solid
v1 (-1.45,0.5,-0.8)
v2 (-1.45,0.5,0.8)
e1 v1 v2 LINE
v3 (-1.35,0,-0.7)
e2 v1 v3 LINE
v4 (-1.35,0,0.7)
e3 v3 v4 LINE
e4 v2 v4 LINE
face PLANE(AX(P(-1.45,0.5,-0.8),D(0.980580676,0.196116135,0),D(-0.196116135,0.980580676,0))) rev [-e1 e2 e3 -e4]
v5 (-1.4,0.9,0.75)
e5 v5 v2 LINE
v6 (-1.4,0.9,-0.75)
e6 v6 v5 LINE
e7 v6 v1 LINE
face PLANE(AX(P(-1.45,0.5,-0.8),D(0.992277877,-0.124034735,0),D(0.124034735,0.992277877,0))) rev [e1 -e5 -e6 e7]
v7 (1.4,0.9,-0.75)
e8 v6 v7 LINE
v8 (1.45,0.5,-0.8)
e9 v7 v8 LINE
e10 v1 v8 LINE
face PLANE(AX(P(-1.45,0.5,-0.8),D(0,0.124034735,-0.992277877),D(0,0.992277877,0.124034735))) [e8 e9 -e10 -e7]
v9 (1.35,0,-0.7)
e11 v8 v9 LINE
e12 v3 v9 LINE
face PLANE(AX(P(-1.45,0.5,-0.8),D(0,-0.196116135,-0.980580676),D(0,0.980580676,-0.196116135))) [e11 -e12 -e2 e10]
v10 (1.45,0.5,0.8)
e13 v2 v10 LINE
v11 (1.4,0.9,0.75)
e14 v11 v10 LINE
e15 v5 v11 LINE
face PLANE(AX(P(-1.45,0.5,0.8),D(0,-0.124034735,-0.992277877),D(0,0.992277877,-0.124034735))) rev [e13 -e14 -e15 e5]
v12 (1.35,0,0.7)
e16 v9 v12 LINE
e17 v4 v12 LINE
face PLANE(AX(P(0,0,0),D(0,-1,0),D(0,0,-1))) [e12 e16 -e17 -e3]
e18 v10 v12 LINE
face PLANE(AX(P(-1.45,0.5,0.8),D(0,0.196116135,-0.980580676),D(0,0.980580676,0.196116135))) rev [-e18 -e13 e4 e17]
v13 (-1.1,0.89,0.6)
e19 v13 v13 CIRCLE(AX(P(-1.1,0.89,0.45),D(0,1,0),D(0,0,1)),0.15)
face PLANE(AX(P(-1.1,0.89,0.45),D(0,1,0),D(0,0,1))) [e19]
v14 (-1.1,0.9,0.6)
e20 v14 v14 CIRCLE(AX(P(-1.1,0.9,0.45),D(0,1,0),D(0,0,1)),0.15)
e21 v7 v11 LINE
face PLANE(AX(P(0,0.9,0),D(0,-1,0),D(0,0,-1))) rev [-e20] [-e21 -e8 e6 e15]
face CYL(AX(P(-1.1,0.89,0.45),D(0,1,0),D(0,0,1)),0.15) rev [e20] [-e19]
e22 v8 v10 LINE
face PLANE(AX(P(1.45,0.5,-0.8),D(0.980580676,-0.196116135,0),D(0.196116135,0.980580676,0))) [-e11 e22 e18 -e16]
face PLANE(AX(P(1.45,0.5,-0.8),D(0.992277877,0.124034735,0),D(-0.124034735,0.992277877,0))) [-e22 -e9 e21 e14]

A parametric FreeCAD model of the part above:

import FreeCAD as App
import Part
import Sketcher

V = App.Vector
Q = App.Units.Quantity

doc = App.newDocument("Part")
body = doc.addObject("PartDesign::Body", "Body")

sketch1 = body.newObject("Sketcher::SketchObject", "Sketch")
sketch1.AttachmentSupport = (doc.getObject("XZ_Plane"), [""])
sketch1.MapMode = "FlatFace"
sketch1.addGeometry([
    Part.LineSegment(V(-1.4, -0.8, 0), V(-1.4, 0.8, 0)),
    Part.LineSegment(V(-1.4, 0.8, 0), V(1.4, 0.8, 0)),
    Part.LineSegment(V(1.4, 0.8, 0), V(1.4, -0.8, 0)),
    Part.LineSegment(V(1.4, -0.8, 0), V(-1.4, -0.8, 0)),
], False)
sketch1.addConstraint([
    Sketcher.Constraint("Coincident", 0, 2, 1, 1),
    Sketcher.Constraint("Coincident", 1, 2, 2, 1),
    Sketcher.Constraint("Coincident", 2, 2, 3, 1),
    Sketcher.Constraint("Coincident", 3, 2, 0, 1),
    Sketcher.Constraint("Vertical", 0),
    Sketcher.Constraint("Horizontal", 1),
    Sketcher.Constraint("Vertical", 2),
    Sketcher.Constraint("Horizontal", 3),
    Sketcher.Constraint("Symmetric", 0, 2, 2, 2, -1, 1),
    Sketcher.Constraint("DistanceX", 1, 1, 1, 2, Q("2.9 mm")),
    Sketcher.Constraint("DistanceY", 0, 1, 0, 2, Q("1.6 mm")),
])
pad1 = body.newObject("PartDesign::Pad", "Pad")
pad1.Profile = sketch1
pad1.Length = 0.9
pad1.Reversed = True

sketch2 = body.newObject("Sketcher::SketchObject", "Sketch001")
sketch2.AttachmentSupport = (doc.getObject("YZ_Plane"), [""])
sketch2.MapMode = "FlatFace"
sketch2.addGeometry([
    Part.LineSegment(V(0, 0.7, 0), V(0.5, 0.8, 0)),
    Part.LineSegment(V(0.5, 0.8, 0), V(0, 0.8, 0)),
    Part.LineSegment(V(0, 0.8, 0), V(0, 0.7, 0)),
], False)
sketch2.addConstraint([
    Sketcher.Constraint("Coincident", 0, 2, 1, 1),
    Sketcher.Constraint("Coincident", 1, 2, 2, 1),
    Sketcher.Constraint("Coincident", 2, 2, 0, 1),
    Sketcher.Constraint("Horizontal", 1),
    Sketcher.Constraint("Vertical", 2),
    Sketcher.Constraint("PointOnObject", 1, 2, -2),
    Sketcher.Constraint("DistanceX", 1, 2, 1, 1, Q("0.5 mm")),
    Sketcher.Constraint("DistanceY", 2, 2, 2, 1, Q("0.1 mm")),
    Sketcher.Constraint("DistanceY", -1, 1, 0, 2, Q("0.8 mm")),
])
pocket1 = body.newObject("PartDesign::Pocket", "Pocket")
pocket1.Profile = sketch2
pocket1.Length = 4.9
pocket1.Midplane = True
doc.recompute()

mirrored = body.newObject("PartDesign::Mirrored", "Mirrored")
mirrored.Originals = [pocket1]
mirrored.MirrorPlane = (doc.getObject("XY_Plane"), [""])
body.Tip = mirrored

sketch3 = body.newObject("Sketcher::SketchObject", "Sketch002")
sketch3.AttachmentSupport = (doc.getObject("YZ_Plane"), [""])
sketch3.MapMode = "FlatFace"
sketch3.addGeometry([
    Part.LineSegment(V(0.5, 0.8, 0), V(0.9, 0.75, 0)),
    Part.LineSegment(V(0.9, 0.75, 0), V(0.9, 0.8, 0)),
    Part.LineSegment(V(0.9, 0.8, 0), V(0.5, 0.8, 0)),
], False)
sketch3.addConstraint([
    Sketcher.Constraint("Coincident", 0, 2, 1, 1),
    Sketcher.Constraint("Coincident", 1, 2, 2, 1),
    Sketcher.Constraint("Coincident", 2, 2, 0, 1),
    Sketcher.Constraint("Vertical", 1),
    Sketcher.Constraint("Horizontal", 2),
    Sketcher.Constraint("DistanceX", 2, 2, 2, 1, Q("0.4 mm")),
    Sketcher.Constraint("DistanceY", 1, 1, 1, 2, Q("0.05 mm")),
    Sketcher.Constraint("DistanceX", -1, 1, 0, 2, Q("0.9 mm")),
    Sketcher.Constraint("DistanceY", -1, 1, 1, 2, Q("0.8 mm")),
])
pocket2 = body.newObject("PartDesign::Pocket", "Pocket001")
pocket2.Profile = sketch3
pocket2.Length = 4.9
pocket2.Midplane = True
doc.recompute()

mirrored2 = body.newObject("PartDesign::Mirrored", "Mirrored001")
mirrored2.Originals = [pocket2]
mirrored2.MirrorPlane = (doc.getObject("XY_Plane"), [""])
body.Tip = mirrored2

sketch4 = body.newObject("Sketcher::SketchObject", "Sketch003")
sketch4.AttachmentSupport = (doc.getObject("XY_Plane"), [""])
sketch4.MapMode = "FlatFace"
sketch4.addGeometry([
    Part.LineSegment(V(-1.35, 0, 0), V(-1.45, 0.5, 0)),
    Part.LineSegment(V(-1.45, 0.5, 0), V(-1.45, 0, 0)),
    Part.LineSegment(V(-1.45, 0, 0), V(-1.35, 0, 0)),
], False)
sketch4.addConstraint([
    Sketcher.Constraint("Coincident", 0, 2, 1, 1),
    Sketcher.Constraint("Coincident", 1, 2, 2, 1),
    Sketcher.Constraint("Coincident", 2, 2, 0, 1),
    Sketcher.Constraint("Vertical", 1),
    Sketcher.Constraint("Horizontal", 2),
    Sketcher.Constraint("PointOnObject", 1, 2, -1),
    Sketcher.Constraint("DistanceX", 2, 1, 2, 2, Q("0.1 mm")),
    Sketcher.Constraint("DistanceY", 1, 2, 1, 1, Q("0.5 mm")),
    Sketcher.Constraint("DistanceX", 0, 2, -1, 1, Q("1.45 mm")),
])
pocket3 = body.newObject("PartDesign::Pocket", "Pocket002")
pocket3.Profile = sketch4
pocket3.Length = 3.6
pocket3.Midplane = True
doc.recompute()

mirrored3 = body.newObject("PartDesign::Mirrored", "Mirrored002")
mirrored3.Originals = [pocket3]
mirrored3.MirrorPlane = (doc.getObject("YZ_Plane"), [""])
body.Tip = mirrored3

sketch5 = body.newObject("Sketcher::SketchObject", "Sketch004")
sketch5.AttachmentSupport = (doc.getObject("XY_Plane"), [""])
sketch5.MapMode = "FlatFace"
sketch5.addGeometry([
    Part.LineSegment(V(-1.45, 0.5, 0), V(-1.4, 0.9, 0)),
    Part.LineSegment(V(-1.4, 0.9, 0), V(-1.45, 0.9, 0)),
    Part.LineSegment(V(-1.45, 0.9, 0), V(-1.45, 0.5, 0)),
], False)
sketch5.addConstraint([
    Sketcher.Constraint("Coincident", 0, 2, 1, 1),
    Sketcher.Constraint("Coincident", 1, 2, 2, 1),
    Sketcher.Constraint("Coincident", 2, 2, 0, 1),
    Sketcher.Constraint("Horizontal", 1),
    Sketcher.Constraint("Vertical", 2),
    Sketcher.Constraint("DistanceY", 2, 2, 2, 1, Q("0.4 mm")),
    Sketcher.Constraint("DistanceX", 1, 2, 1, 1, Q("0.05 mm")),
    Sketcher.Constraint("DistanceX", 0, 2, -1, 1, Q("1.4 mm")),
    Sketcher.Constraint("DistanceY", -1, 1, 0, 2, Q("0.9 mm")),
])
pocket4 = body.newObject("PartDesign::Pocket", "Pocket003")
pocket4.Profile = sketch5
pocket4.Length = 3.6
pocket4.Midplane = True
doc.recompute()

mirrored4 = body.newObject("PartDesign::Mirrored", "Mirrored003")
mirrored4.Originals = [pocket4]
mirrored4.MirrorPlane = (doc.getObject("YZ_Plane"), [""])
body.Tip = mirrored4

sketch6 = body.newObject("Sketcher::SketchObject", "Sketch005")
sketch6.AttachmentSupport = (doc.getObject("XZ_Plane"), [""])
sketch6.MapMode = "FlatFace"
sketch6.AttachmentOffset = App.Placement(V(0, 0, -0.9), App.Rotation())
sketch6.addGeometry(Part.Circle(V(-1.1, 0.45, 0), V(0, 0, 1), 0.15), False)
sketch6.addConstraint([
    Sketcher.Constraint("Diameter", 0, Q("0.3 mm")),
    Sketcher.Constraint("DistanceX", 0, 3, -1, 1, Q("1.1 mm")),
    Sketcher.Constraint("DistanceY", -1, 1, 0, 3, Q("0.45 mm")),
])
pocket5 = body.newObject("PartDesign::Pocket", "Pocket004")
pocket5.Profile = sketch6
pocket5.Length = 0.01
pocket5.Reversed = True

doc.recompute()
